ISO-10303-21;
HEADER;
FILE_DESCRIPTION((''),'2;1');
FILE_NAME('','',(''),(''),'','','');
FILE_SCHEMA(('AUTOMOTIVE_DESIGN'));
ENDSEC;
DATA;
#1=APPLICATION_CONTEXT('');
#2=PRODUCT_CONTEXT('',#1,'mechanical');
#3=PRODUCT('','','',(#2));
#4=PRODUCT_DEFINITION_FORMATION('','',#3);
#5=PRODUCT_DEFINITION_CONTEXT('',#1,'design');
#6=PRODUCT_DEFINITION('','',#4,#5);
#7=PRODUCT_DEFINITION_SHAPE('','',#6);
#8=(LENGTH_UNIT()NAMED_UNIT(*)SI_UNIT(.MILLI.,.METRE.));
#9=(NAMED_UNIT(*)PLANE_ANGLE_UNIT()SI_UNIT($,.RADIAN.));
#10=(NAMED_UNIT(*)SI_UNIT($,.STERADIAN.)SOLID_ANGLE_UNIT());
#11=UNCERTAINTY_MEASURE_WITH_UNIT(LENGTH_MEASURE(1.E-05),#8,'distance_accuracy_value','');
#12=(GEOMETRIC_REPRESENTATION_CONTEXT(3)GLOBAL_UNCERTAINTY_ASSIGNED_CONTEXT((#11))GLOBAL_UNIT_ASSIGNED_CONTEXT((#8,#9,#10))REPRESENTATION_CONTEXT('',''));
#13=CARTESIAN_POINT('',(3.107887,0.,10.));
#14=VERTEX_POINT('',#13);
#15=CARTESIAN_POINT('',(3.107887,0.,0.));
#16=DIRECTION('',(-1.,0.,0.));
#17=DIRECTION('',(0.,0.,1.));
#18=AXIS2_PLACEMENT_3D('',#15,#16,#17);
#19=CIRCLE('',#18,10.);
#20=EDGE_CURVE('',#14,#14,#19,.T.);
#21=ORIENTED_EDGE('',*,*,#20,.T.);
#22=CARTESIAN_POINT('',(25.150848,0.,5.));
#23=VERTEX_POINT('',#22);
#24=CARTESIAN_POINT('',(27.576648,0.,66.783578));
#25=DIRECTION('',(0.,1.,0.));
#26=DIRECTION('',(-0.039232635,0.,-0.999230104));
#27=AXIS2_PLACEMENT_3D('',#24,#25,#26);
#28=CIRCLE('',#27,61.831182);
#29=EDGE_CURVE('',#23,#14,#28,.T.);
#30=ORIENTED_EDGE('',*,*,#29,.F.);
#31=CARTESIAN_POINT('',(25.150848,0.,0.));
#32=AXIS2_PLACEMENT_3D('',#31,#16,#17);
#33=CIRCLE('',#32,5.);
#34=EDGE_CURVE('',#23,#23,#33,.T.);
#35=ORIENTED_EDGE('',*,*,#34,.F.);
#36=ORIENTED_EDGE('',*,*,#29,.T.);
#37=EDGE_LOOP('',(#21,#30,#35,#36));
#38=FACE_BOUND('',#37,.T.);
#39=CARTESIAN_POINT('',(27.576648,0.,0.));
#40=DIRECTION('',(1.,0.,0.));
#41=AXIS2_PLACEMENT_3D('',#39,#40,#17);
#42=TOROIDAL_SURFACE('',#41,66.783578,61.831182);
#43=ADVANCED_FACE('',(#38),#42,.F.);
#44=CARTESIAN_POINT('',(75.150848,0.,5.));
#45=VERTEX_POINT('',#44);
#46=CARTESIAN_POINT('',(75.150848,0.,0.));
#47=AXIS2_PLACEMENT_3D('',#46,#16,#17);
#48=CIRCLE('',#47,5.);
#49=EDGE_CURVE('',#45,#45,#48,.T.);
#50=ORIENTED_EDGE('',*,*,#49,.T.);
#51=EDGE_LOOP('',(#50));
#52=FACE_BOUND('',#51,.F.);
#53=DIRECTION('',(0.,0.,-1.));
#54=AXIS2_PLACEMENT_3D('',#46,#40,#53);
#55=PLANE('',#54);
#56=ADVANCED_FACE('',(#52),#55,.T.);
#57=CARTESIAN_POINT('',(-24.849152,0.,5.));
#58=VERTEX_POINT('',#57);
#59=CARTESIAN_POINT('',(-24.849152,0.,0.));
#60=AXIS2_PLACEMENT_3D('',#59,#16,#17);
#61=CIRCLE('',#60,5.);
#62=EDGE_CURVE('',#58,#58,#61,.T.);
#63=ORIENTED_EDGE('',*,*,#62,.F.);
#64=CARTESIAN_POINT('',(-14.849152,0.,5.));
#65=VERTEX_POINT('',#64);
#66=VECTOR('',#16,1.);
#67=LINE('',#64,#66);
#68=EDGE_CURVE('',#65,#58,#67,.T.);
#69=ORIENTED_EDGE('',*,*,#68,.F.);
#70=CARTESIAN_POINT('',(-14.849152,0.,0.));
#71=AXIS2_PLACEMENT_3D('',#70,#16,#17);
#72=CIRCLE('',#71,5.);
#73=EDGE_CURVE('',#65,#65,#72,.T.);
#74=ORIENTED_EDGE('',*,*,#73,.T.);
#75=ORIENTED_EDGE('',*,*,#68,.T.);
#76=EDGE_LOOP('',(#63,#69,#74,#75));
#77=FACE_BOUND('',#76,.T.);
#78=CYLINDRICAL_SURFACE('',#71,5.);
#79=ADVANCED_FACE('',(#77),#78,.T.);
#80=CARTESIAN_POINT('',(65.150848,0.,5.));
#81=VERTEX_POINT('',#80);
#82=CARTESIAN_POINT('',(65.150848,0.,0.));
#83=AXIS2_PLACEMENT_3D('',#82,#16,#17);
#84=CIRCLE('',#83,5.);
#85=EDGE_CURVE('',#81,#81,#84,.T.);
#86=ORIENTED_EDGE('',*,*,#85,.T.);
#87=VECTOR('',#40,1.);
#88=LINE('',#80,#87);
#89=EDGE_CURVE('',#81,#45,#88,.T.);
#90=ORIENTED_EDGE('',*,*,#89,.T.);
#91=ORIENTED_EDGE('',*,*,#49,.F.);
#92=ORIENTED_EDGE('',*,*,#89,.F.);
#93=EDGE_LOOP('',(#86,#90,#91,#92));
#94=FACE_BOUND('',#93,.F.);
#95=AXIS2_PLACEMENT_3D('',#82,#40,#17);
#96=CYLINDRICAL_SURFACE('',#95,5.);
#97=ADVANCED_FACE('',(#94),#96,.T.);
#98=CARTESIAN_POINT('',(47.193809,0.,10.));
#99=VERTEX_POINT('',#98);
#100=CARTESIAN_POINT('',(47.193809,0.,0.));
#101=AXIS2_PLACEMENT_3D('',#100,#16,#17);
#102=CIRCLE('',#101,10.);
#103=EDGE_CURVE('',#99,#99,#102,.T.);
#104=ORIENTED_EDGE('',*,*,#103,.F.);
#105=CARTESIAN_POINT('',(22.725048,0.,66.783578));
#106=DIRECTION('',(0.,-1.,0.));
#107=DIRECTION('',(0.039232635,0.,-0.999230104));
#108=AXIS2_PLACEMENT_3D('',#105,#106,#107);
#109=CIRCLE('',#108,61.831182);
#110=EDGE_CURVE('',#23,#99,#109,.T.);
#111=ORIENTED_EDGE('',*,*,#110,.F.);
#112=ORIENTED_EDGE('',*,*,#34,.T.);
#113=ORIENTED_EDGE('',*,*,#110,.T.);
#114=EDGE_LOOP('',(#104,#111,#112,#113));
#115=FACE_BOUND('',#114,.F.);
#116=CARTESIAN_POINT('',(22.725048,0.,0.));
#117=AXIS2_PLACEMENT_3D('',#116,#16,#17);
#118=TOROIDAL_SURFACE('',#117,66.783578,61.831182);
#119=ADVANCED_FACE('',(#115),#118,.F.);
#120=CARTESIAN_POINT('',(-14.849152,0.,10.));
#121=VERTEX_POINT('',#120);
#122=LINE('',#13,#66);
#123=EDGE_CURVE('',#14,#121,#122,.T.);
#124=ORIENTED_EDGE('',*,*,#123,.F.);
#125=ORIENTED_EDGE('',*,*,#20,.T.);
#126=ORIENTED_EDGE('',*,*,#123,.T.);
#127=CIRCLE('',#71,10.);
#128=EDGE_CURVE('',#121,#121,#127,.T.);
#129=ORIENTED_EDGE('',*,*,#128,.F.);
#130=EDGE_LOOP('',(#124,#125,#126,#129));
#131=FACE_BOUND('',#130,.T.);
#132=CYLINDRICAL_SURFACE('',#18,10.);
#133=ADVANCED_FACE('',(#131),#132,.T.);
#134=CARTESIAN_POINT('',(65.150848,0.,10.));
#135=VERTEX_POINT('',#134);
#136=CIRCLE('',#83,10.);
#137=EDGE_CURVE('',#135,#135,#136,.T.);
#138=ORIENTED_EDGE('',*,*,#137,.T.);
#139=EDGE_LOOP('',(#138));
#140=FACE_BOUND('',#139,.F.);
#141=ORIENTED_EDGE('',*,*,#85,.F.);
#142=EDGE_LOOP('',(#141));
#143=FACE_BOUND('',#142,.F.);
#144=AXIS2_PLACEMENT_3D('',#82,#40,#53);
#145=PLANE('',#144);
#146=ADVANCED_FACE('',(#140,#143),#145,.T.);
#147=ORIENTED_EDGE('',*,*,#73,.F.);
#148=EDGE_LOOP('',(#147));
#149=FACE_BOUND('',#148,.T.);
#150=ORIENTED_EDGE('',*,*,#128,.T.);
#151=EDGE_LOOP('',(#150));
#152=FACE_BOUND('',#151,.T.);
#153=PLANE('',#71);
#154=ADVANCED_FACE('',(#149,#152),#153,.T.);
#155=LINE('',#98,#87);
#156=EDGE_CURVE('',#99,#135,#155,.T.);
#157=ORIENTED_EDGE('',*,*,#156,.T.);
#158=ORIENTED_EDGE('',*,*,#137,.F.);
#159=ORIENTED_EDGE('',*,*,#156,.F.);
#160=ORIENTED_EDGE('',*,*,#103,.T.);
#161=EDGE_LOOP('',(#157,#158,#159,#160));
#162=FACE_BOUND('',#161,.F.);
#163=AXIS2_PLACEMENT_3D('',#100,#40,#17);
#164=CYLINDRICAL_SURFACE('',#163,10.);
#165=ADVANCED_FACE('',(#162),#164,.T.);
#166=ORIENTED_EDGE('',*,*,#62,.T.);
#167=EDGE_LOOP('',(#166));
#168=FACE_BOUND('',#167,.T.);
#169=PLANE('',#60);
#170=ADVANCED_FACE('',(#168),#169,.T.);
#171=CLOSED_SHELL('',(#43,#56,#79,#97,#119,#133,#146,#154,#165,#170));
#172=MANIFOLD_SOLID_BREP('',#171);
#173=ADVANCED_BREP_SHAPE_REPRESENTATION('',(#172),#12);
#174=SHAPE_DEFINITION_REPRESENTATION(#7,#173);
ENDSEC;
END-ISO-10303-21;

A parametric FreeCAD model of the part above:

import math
import FreeCAD as App
import Part
import Sketcher

doc = App.newDocument("Part")
body = doc.addObject("PartDesign::Body", "Body")

# Sketch on XZ plane
sketch1 = body.newObject("Sketcher::SketchObject", "Sketch")
sketch1.AttachmentSupport = (doc.getObject("XZ_Plane"), [""])
sketch1.MapMode = "FlatFace"
sketch1.addGeometry(Part.LineSegment(App.Vector(-25, 5, 0), App.Vector(-25, 0, 0)), False)
sketch1.addGeometry(Part.LineSegment(App.Vector(-25, 0, 0), App.Vector(25, 0, 0)), False)
sketch1.addGeometry(Part.LineSegment(App.Vector(25, 0, 0), App.Vector(25, 5, 0)), False)
sketch1.addGeometry(Part.ArcOfCircle(Part.Circle(App.Vector(28, 67, 0), App.Vector(0, 0, 1), 62), math.radians(-113), math.radians(-92)), False)
sketch1.addGeometry(Part.LineSegment(App.Vector(3, 10, 0), App.Vector(-15, 10, 0)), False)
sketch1.addGeometry(Part.LineSegment(App.Vector(-15, 10, 0), App.Vector(-15, 5, 0)), False)
sketch1.addGeometry(Part.LineSegment(App.Vector(-15, 5, 0), App.Vector(-25, 5, 0)), False)
sketch1.addConstraint(Sketcher.Constraint("Coincident", 0, 2, 1, 1))
sketch1.addConstraint(Sketcher.Constraint("Coincident", 1, 2, 2, 1))
sketch1.addConstraint(Sketcher.Constraint("Coincident", 2, 2, 3, 2))
sketch1.addConstraint(Sketcher.Constraint("Coincident", 3, 1, 4, 1))
sketch1.addConstraint(Sketcher.Constraint("Coincident", 4, 2, 5, 1))
sketch1.addConstraint(Sketcher.Constraint("Coincident", 5, 2, 6, 1))
sketch1.addConstraint(Sketcher.Constraint("Coincident", 6, 2, 0, 1))
sketch1.addConstraint(Sketcher.Constraint("Vertical", 0))
sketch1.addConstraint(Sketcher.Constraint("Horizontal", 1))
sketch1.addConstraint(Sketcher.Constraint("Vertical", 2))
sketch1.addConstraint(Sketcher.Constraint("Horizontal", 4))
sketch1.addConstraint(Sketcher.Constraint("Vertical", 5))
sketch1.addConstraint(Sketcher.Constraint("Horizontal", 6))
sketch1.addConstraint(Sketcher.Constraint("PointOnObject", 0, 2, -1))
sketch1.addConstraint(Sketcher.Constraint("Horizontal", 2, 2, 5, 2))
sketch1.addConstraint(Sketcher.Constraint("Equal", 2, 5))
sketch1.addConstraint(Sketcher.Constraint("DistanceX", 1, 1, 1, 2, 50.0))
sketch1.addConstraint(Sketcher.Constraint("DistanceX", 6, 2, 6, 1, 10.0))
sketch1.addConstraint(Sketcher.Constraint("DistanceY", 0, 2, 0, 1, 5.0))
sketch1.addConstraint(Sketcher.Constraint("Radius", 3, 61.831182))
sketch1.addConstraint(Sketcher.Constraint("DistanceX", 4, 2, 4, 1, 17.957039))
sketch1.addConstraint(Sketcher.Constraint("DistanceX", -1, 1, 3, 3, 27.576648))
revolution = body.newObject("PartDesign::Revolution", "Revolution")
revolution.Profile = sketch1
revolution.ReferenceAxis = (sketch1, ["H_Axis"])
revolution.Angle = 360
body2 = doc.addObject("PartDesign::Body", "Body001")
doc.recompute()

body2.BaseFeature = body
doc.recompute()

mirroring = doc.addObject("Part::Mirroring", "Mirroring")
mirroring.Source = body
mirroring.Base = App.Vector(25.150848, 0, 0)
mirroring.Normal = App.Vector(1, 0, 0)
body3 = doc.addObject("PartDesign::Body", "Body002")
body3.BaseFeature = mirroring
boolean = body2.newObject("PartDesign::Boolean", "Boolean")
boolean.Type = "Fuse"
boolean.addObjects([body3])
doc.recompute()
mirroring.Visibility = False

doc.recompute()
